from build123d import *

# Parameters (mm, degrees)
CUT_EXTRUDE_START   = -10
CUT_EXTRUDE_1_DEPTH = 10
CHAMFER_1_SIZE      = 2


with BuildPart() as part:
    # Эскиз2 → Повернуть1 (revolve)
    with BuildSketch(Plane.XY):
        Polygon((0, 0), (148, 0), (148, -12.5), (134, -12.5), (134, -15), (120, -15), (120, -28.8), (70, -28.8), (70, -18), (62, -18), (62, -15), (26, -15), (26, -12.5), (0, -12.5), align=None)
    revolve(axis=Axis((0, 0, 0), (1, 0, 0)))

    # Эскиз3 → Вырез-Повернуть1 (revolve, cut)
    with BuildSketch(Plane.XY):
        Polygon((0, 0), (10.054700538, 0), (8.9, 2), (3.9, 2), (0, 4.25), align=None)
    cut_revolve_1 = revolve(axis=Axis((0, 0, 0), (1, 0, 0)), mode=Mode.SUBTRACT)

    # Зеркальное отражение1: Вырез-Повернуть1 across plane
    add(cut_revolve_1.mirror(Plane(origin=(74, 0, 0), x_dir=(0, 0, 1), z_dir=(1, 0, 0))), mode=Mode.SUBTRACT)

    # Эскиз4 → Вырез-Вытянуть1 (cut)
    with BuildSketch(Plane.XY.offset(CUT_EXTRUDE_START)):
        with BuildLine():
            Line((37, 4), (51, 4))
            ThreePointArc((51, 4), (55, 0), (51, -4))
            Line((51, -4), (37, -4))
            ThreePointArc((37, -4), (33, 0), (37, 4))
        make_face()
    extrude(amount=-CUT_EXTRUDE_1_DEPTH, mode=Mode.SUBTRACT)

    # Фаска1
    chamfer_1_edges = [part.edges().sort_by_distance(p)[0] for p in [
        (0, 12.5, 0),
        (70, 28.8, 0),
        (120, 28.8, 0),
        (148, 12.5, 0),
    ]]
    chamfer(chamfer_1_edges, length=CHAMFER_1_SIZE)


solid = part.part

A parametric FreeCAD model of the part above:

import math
import FreeCAD as App
import Part
import Sketcher
from FreeCAD import Vector
Q = App.Units.Quantity


def edges_at(feature, points):
    """Names of the edges that pass closest to the given points."""
    edges = feature.Shape.Edges
    near = lambda p: min(range(len(edges)), key=lambda i: edges[i].distToShape(Part.Vertex(*p))[0])
    return sorted({f"Edge{near(p) + 1}" for p in points})

doc = App.newDocument("Part")
body = doc.addObject("PartDesign::Body", "Body")

sketch1 = body.newObject("Sketcher::SketchObject", "Sketch")
sketch1.AttachmentSupport = (doc.getObject("XY_Plane"), [""])
sketch1.MapMode = "FlatFace"
sketch1.addGeometry([
    Part.LineSegment(Vector(148, 0, 0), Vector(0, 0, 0)),
    Part.LineSegment(Vector(0, 0, 0), Vector(0, -12.5, 0)),
    Part.LineSegment(Vector(0, -12.5, 0), Vector(26, -12.5, 0)),
    Part.LineSegment(Vector(26, -12.5, 0), Vector(26, -15, 0)),
    Part.LineSegment(Vector(26, -15, 0), Vector(62, -15, 0)),
    Part.LineSegment(Vector(62, -15, 0), Vector(62, -18, 0)),
    Part.LineSegment(Vector(62, -18, 0), Vector(70, -18, 0)),
    Part.LineSegment(Vector(70, -18, 0), Vector(70, -28.8, 0)),
    Part.LineSegment(Vector(70, -28.8, 0), Vector(120, -28.8, 0)),
    Part.LineSegment(Vector(120, -28.8, 0), Vector(120, -15, 0)),
    Part.LineSegment(Vector(120, -15, 0), Vector(134, -15, 0)),
    Part.LineSegment(Vector(134, -15, 0), Vector(134, -12.5, 0)),
    Part.LineSegment(Vector(134, -12.5, 0), Vector(148, -12.5, 0)),
    Part.LineSegment(Vector(148, -12.5, 0), Vector(148, 0, 0)),
], False)
sketch1.addConstraint([
    Sketcher.Constraint("Coincident", 0, 2, 1, 1),
    Sketcher.Constraint("Coincident", 1, 2, 2, 1),
    Sketcher.Constraint("Coincident", 2, 2, 3, 1),
    Sketcher.Constraint("Coincident", 3, 2, 4, 1),
    Sketcher.Constraint("Coincident", 4, 2, 5, 1),
    Sketcher.Constraint("Coincident", 5, 2, 6, 1),
    Sketcher.Constraint("Coincident", 6, 2, 7, 1),
    Sketcher.Constraint("Coincident", 7, 2, 8, 1),
    Sketcher.Constraint("Coincident", 8, 2, 9, 1),
    Sketcher.Constraint("Coincident", 9, 2, 10, 1),
    Sketcher.Constraint("Coincident", 10, 2, 11, 1),
    Sketcher.Constraint("Coincident", 11, 2, 12, 1),
    Sketcher.Constraint("Coincident", 12, 2, 13, 1),
    Sketcher.Constraint("Coincident", 13, 2, 0, 1),
    Sketcher.Constraint("Horizontal", 0),
    Sketcher.Constraint("Vertical", 1),
    Sketcher.Constraint("Horizontal", 2),
    Sketcher.Constraint("Vertical", 3),
    Sketcher.Constraint("Horizontal", 4),
    Sketcher.Constraint("Vertical", 5),
    Sketcher.Constraint("Horizontal", 6),
    Sketcher.Constraint("Vertical", 7),
    Sketcher.Constraint("Horizontal", 8),
    Sketcher.Constraint("Vertical", 9),
    Sketcher.Constraint("Horizontal", 10),
    Sketcher.Constraint("Vertical", 11),
    Sketcher.Constraint("Horizontal", 12),
    Sketcher.Constraint("Vertical", 13),
    Sketcher.Constraint("Coincident", 0, 2, -1, 1),
    Sketcher.Constraint("Horizontal", 4, 2, 9, 2),
    Sketcher.Constraint("Horizontal", 2, 2, 11, 2),
    Sketcher.Constraint("Equal", 10, 12),
    Sketcher.Constraint("DistanceX", 0, 2, 0, 1, 148.0),
    Sketcher.Constraint("DistanceX", 2, 1, 2, 2, 26.0),
    Sketcher.Constraint("DistanceX", 4, 1, 4, 2, 36.0),
    Sketcher.Constraint("DistanceX", 6, 1, 6, 2, 8.0),
    Sketcher.Constraint("DistanceX", 8, 1, 8, 2, 50.0),
    Sketcher.Constraint("DistanceY", 5, 2, 5, 1, 3.0),
    Sketcher.Constraint("DistanceY", 1, 2, 1, 1, 12.5),
    Sketcher.Constraint("DistanceY", 3, 2, 3, 1, 2.5),
    Sketcher.Constraint("DistanceY", 7, 2, 7, 1, 10.8),
])
revolution = body.newObject("PartDesign::Revolution", "Revolution")
revolution.Profile = sketch1
revolution.ReferenceAxis = (sketch1, ["H_Axis"])
revolution.Angle = 360

sketch2 = body.newObject("Sketcher::SketchObject", "Sketch001")
sketch2.AttachmentSupport = (doc.getObject("XY_Plane"), [""])
sketch2.MapMode = "FlatFace"
sketch2.addGeometry([
    Part.LineSegment(Vector(0, 0, 0), Vector(10.054701, 0, 0)),
    Part.LineSegment(Vector(10.054701, 0, 0), Vector(8.9, 2, 0)),
    Part.LineSegment(Vector(8.9, 2, 0), Vector(3.9, 2, 0)),
    Part.LineSegment(Vector(3.9, 2, 0), Vector(0, 4.25, 0)),
    Part.LineSegment(Vector(0, 4.25, 0), Vector(0, 0, 0)),
], False)
sketch2.addConstraint([
    Sketcher.Constraint("Coincident", 0, 2, 1, 1),
    Sketcher.Constraint("Coincident", 1, 2, 2, 1),
    Sketcher.Constraint("Coincident", 2, 2, 3, 1),
    Sketcher.Constraint("Coincident", 3, 2, 4, 1),
    Sketcher.Constraint("Coincident", 4, 2, 0, 1),
    Sketcher.Constraint("Horizontal", 0),
    Sketcher.Constraint("Horizontal", 2),
    Sketcher.Constraint("Vertical", 4),
    Sketcher.Constraint("Coincident", 4, 2, -1, 1),
    Sketcher.Constraint("DistanceX", 2, 2, 2, 1, 5.0),
    Sketcher.Constraint("Angle", 1, Q("120 deg")),
    Sketcher.Constraint("DistanceY", -1, 1, 1, 2, 2.0),
    Sketcher.Constraint("DistanceY", 4, 2, 4, 1, 4.25),
    Sketcher.Constraint("DistanceX", -1, 1, 1, 2, 8.9),
])
groove = body.newObject("PartDesign::Groove", "Groove")
groove.Profile = sketch2
groove.ReferenceAxis = (sketch2, ["H_Axis"])
groove.Angle = 360
doc.recompute()

datumplane = body.newObject("PartDesign::Plane", "DatumPlane")
datumplane.AttachmentSupport = (doc.getObject("YZ_Plane"), [""])
datumplane.MapMode = "FlatFace"
datumplane.AttachmentOffset = App.Placement(Vector(0, 0, 74), App.Rotation())
mirrored = body.newObject("PartDesign::Mirrored", "Mirrored")
mirrored.Originals = [groove]
mirrored.MirrorPlane = (datumplane, [""])
body.Tip = mirrored

sketch3 = body.newObject("Sketcher::SketchObject", "Sketch002")
sketch3.AttachmentSupport = (doc.getObject("XY_Plane"), [""])
sketch3.MapMode = "FlatFace"
sketch3.AttachmentOffset = App.Placement(Vector(0, 0, -10), App.Rotation())
sketch3.addGeometry([
    Part.LineSegment(Vector(51, 4, 0), Vector(37, 4, 0)),
    Part.ArcOfCircle(Part.Circle(Vector(37, 0, 0), Vector(0, 0, 1), 4), math.radians(90), math.radians(270)),
    Part.LineSegment(Vector(37, -4, 0), Vector(51, -4, 0)),
    Part.ArcOfCircle(Part.Circle(Vector(51, 0, 0), Vector(0, 0, 1), 4), math.radians(-90), math.radians(90)),
], False)
sketch3.addConstraint([
    Sketcher.Constraint("Tangent", 0, 2, 1, 1),
    Sketcher.Constraint("Tangent", 1, 2, 2, 1),
    Sketcher.Constraint("Tangent", 2, 2, 3, 1),
    Sketcher.Constraint("Tangent", 3, 2, 0, 1),
    Sketcher.Constraint("Horizontal", 0),
    Sketcher.Constraint("Horizontal", 2),
    Sketcher.Constraint("PointOnObject", 1, 3, -1),
    Sketcher.Constraint("Radius", 1, 4.0),
    Sketcher.Constraint("DistanceX", 0, 2, 0, 1, 14.0),
    Sketcher.Constraint("DistanceX", -1, 1, 1, 3, 37.0),
])
pocket1 = body.newObject("PartDesign::Pocket", "Pocket")
pocket1.Profile = sketch3
pocket1.Length = 10
doc.recompute()

chamfer = body.newObject("PartDesign::Chamfer", "Chamfer")
chamfer.Base = (pocket1, edges_at(pocket1, [
    (0, 12.5, 0),
    (70, 28.8, 0),
    (120, 28.8, 0),
    (148, 12.5, 0),
]))
chamfer.Size = 2

doc.recompute()
